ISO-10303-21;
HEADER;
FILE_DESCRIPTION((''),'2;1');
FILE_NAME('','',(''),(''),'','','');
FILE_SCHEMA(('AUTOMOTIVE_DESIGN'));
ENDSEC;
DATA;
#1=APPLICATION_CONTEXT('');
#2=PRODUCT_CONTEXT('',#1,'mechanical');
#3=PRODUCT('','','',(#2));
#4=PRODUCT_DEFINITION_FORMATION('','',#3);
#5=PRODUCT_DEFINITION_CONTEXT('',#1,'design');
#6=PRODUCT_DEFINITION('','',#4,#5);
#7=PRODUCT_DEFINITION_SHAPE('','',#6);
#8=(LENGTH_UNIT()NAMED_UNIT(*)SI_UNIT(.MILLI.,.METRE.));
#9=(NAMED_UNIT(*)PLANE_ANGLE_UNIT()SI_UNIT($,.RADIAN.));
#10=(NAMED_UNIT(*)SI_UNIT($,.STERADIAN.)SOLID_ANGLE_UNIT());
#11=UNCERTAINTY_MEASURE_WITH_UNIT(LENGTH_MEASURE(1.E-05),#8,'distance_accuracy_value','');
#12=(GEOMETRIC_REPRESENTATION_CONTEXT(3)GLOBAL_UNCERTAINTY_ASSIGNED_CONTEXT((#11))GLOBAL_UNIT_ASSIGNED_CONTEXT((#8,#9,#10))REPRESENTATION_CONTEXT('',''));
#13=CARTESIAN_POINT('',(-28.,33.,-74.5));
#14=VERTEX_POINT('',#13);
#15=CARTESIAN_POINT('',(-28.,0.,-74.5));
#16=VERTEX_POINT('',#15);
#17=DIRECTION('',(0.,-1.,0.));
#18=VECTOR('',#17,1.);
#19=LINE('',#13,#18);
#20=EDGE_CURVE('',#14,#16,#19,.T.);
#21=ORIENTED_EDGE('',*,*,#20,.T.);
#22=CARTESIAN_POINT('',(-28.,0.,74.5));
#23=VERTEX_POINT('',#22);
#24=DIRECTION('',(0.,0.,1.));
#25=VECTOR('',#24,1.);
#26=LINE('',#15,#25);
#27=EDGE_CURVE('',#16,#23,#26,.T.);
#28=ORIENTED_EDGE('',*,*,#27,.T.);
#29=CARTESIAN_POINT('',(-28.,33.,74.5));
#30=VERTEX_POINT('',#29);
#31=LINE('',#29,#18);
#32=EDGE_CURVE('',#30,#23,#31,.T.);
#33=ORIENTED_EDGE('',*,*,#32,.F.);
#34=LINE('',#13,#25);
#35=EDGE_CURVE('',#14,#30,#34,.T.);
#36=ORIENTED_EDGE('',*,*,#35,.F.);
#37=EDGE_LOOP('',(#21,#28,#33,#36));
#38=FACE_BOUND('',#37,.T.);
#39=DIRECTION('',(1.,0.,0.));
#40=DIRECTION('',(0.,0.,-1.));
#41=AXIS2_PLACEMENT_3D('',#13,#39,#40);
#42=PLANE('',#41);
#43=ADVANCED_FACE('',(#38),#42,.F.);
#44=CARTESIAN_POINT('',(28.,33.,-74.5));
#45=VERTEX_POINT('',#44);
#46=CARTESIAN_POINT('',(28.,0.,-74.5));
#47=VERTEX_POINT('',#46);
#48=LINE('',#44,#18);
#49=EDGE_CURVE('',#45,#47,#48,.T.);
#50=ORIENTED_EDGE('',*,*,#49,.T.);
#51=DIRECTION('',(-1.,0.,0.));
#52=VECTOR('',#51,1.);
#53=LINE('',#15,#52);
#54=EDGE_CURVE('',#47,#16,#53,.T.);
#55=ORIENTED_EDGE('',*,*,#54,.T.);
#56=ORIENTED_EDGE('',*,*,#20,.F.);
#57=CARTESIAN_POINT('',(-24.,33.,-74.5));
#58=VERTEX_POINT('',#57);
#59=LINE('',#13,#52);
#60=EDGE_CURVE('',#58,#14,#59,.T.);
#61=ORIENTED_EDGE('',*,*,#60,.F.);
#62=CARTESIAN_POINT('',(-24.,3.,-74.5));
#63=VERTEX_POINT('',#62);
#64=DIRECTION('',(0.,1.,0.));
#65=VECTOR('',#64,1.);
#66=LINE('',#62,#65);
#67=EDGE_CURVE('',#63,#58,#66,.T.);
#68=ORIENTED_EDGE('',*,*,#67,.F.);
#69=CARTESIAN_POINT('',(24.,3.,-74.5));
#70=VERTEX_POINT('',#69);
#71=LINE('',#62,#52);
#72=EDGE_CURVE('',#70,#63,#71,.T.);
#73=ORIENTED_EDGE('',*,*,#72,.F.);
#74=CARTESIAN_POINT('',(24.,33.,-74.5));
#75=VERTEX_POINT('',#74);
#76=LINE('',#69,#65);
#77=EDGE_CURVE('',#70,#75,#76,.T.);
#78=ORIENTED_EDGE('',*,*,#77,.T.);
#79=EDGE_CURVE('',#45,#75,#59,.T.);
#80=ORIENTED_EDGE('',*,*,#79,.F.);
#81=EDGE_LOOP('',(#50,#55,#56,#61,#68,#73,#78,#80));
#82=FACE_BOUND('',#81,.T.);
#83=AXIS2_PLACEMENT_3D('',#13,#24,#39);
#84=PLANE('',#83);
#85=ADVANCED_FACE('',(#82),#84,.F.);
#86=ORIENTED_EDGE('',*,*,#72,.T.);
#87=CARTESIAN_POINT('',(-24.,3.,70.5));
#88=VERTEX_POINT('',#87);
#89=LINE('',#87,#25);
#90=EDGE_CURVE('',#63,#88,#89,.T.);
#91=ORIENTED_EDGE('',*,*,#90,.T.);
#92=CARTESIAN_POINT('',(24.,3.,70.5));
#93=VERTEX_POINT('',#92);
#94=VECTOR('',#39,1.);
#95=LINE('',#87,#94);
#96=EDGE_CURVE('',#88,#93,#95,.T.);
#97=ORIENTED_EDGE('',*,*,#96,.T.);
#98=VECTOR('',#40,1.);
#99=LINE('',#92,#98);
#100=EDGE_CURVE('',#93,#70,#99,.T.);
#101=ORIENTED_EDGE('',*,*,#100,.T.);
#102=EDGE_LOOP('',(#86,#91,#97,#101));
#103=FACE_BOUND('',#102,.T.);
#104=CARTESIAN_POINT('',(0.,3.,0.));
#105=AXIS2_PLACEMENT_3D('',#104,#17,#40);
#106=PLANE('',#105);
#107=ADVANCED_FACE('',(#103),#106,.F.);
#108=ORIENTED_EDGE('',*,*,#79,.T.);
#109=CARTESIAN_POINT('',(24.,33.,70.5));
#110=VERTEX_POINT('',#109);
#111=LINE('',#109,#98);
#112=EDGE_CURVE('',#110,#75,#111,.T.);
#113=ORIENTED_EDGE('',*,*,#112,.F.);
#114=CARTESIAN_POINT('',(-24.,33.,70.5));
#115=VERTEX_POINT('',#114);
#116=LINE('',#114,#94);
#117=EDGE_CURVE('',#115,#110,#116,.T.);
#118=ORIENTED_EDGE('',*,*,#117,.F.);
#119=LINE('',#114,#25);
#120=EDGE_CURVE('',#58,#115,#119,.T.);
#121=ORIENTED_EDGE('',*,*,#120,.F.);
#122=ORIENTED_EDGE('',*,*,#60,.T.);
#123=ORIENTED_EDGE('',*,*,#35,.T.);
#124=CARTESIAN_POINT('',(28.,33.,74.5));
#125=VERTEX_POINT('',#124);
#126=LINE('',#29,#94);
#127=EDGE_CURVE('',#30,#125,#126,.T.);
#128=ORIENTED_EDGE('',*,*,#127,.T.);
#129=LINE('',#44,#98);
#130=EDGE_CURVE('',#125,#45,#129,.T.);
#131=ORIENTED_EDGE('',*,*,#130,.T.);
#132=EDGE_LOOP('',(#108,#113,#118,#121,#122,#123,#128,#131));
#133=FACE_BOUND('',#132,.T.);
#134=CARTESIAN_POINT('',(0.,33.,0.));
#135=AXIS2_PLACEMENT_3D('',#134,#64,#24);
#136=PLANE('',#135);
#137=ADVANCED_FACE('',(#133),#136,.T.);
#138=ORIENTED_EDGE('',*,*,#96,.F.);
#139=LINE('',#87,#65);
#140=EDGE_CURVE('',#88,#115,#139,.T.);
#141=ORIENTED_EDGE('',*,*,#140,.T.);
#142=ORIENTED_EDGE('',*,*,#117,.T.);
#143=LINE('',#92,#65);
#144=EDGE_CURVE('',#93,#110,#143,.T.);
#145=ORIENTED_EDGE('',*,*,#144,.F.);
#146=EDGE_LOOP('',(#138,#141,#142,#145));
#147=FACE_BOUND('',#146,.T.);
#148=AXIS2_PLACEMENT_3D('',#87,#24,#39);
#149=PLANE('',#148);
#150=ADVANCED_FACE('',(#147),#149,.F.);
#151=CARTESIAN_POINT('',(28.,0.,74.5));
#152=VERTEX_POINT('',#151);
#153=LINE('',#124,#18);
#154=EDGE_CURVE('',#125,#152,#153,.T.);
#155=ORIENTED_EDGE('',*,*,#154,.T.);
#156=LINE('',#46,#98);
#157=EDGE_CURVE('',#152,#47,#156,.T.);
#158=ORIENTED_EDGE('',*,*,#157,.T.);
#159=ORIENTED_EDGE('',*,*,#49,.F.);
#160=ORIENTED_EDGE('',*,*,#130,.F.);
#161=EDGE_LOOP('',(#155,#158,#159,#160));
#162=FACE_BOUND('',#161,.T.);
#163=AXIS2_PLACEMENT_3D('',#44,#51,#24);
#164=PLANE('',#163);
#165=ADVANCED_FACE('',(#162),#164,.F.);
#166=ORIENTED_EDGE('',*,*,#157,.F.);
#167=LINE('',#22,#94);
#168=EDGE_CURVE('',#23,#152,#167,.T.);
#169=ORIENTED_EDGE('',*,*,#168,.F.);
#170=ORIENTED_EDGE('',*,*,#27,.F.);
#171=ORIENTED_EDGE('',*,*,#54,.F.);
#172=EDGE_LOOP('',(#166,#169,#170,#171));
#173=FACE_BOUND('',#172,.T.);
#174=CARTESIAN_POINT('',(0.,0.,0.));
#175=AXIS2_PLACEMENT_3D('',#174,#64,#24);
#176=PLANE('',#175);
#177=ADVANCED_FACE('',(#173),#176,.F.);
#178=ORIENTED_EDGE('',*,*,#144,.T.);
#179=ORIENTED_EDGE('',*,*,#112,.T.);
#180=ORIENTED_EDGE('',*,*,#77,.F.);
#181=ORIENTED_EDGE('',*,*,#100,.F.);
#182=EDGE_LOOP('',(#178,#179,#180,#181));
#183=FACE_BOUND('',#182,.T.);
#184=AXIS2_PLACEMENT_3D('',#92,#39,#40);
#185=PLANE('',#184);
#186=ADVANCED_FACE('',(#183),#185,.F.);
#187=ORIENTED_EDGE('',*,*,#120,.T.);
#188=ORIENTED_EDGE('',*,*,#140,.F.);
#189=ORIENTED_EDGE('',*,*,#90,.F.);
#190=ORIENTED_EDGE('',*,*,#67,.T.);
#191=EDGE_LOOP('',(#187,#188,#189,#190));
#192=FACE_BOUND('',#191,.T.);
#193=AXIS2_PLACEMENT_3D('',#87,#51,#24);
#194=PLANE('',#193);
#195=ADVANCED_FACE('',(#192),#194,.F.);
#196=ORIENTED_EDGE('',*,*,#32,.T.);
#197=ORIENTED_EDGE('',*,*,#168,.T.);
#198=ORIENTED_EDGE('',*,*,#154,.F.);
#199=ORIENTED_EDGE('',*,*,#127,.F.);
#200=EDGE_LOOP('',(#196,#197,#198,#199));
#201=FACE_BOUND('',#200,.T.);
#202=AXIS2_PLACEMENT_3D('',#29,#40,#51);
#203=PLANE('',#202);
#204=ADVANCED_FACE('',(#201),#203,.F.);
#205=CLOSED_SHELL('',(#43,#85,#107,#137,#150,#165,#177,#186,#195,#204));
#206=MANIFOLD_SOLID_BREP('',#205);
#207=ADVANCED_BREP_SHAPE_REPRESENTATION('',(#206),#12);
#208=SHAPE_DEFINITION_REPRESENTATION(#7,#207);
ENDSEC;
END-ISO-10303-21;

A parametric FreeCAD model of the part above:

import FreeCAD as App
import Part
import Sketcher

V = App.Vector


def add_polygon(sketch, points):
    """Adds a closed chain of lines whose ends are joined by coincident constraints."""
    first, n = sketch.GeometryCount, len(points)
    for a, b in zip(points, points[1:] + points[:1]):
        sketch.addGeometry(Part.LineSegment(App.Vector(*a, 0), App.Vector(*b, 0)), False)
    for i in range(n):
        sketch.addConstraint(Sketcher.Constraint("Coincident", first + i, 2, first + (i + 1) % n, 1))

doc = App.newDocument("Part")
body = doc.addObject("PartDesign::Body", "Body")

# Sketch on XZ plane
sketch1 = body.newObject("Sketcher::SketchObject", "Sketch")
sketch1.AttachmentSupport = (doc.getObject("XZ_Plane"), [""])
sketch1.MapMode = "FlatFace"
add_polygon(sketch1, [(-28, -74), (-28, 74), (28, 74), (28, -74)])  # lines 0-3
sketch1.addConstraint([
    Sketcher.Constraint("Vertical", 0),
    Sketcher.Constraint("Horizontal", 1),
    Sketcher.Constraint("Vertical", 2),
    Sketcher.Constraint("Horizontal", 3),
    Sketcher.Constraint("Symmetric", 0, 2, 2, 2, -1, 1),
    Sketcher.Constraint("DistanceX", 1, 1, 1, 2, 56.0),
    Sketcher.Constraint("DistanceY", 0, 1, 0, 2, 149.0),
])
pad1 = body.newObject("PartDesign::Pad", "Pad")
pad1.Profile = sketch1
pad1.Length = 33
pad1.Reversed = True

# Sketch on XZ plane
sketch2 = body.newObject("Sketcher::SketchObject", "Sketch001")
sketch2.AttachmentSupport = (doc.getObject("XZ_Plane"), [""])
sketch2.MapMode = "FlatFace"
sketch2.AttachmentOffset = App.Placement(V(0, 0, -33), App.Rotation())
add_polygon(sketch2, [(-24, -74), (-24, 70), (24, 70), (24, -74)])  # lines 0-3
sketch2.addConstraint([
    Sketcher.Constraint("Vertical", 0),
    Sketcher.Constraint("Horizontal", 1),
    Sketcher.Constraint("Vertical", 2),
    Sketcher.Constraint("Horizontal", 3),
    Sketcher.Constraint("DistanceX", 1, 1, 1, 2, 48.0),
    Sketcher.Constraint("DistanceY", 0, 1, 0, 2, 145.0),
    Sketcher.Constraint("DistanceX", 0, 2, -1, 1, 24.0),
    Sketcher.Constraint("DistanceY", -1, 1, 0, 2, 70.5),
])
pocket1 = body.newObject("PartDesign::Pocket", "Pocket")
pocket1.Profile = sketch2
pocket1.Length = 30
pocket1.Reversed = True

doc.recompute()
